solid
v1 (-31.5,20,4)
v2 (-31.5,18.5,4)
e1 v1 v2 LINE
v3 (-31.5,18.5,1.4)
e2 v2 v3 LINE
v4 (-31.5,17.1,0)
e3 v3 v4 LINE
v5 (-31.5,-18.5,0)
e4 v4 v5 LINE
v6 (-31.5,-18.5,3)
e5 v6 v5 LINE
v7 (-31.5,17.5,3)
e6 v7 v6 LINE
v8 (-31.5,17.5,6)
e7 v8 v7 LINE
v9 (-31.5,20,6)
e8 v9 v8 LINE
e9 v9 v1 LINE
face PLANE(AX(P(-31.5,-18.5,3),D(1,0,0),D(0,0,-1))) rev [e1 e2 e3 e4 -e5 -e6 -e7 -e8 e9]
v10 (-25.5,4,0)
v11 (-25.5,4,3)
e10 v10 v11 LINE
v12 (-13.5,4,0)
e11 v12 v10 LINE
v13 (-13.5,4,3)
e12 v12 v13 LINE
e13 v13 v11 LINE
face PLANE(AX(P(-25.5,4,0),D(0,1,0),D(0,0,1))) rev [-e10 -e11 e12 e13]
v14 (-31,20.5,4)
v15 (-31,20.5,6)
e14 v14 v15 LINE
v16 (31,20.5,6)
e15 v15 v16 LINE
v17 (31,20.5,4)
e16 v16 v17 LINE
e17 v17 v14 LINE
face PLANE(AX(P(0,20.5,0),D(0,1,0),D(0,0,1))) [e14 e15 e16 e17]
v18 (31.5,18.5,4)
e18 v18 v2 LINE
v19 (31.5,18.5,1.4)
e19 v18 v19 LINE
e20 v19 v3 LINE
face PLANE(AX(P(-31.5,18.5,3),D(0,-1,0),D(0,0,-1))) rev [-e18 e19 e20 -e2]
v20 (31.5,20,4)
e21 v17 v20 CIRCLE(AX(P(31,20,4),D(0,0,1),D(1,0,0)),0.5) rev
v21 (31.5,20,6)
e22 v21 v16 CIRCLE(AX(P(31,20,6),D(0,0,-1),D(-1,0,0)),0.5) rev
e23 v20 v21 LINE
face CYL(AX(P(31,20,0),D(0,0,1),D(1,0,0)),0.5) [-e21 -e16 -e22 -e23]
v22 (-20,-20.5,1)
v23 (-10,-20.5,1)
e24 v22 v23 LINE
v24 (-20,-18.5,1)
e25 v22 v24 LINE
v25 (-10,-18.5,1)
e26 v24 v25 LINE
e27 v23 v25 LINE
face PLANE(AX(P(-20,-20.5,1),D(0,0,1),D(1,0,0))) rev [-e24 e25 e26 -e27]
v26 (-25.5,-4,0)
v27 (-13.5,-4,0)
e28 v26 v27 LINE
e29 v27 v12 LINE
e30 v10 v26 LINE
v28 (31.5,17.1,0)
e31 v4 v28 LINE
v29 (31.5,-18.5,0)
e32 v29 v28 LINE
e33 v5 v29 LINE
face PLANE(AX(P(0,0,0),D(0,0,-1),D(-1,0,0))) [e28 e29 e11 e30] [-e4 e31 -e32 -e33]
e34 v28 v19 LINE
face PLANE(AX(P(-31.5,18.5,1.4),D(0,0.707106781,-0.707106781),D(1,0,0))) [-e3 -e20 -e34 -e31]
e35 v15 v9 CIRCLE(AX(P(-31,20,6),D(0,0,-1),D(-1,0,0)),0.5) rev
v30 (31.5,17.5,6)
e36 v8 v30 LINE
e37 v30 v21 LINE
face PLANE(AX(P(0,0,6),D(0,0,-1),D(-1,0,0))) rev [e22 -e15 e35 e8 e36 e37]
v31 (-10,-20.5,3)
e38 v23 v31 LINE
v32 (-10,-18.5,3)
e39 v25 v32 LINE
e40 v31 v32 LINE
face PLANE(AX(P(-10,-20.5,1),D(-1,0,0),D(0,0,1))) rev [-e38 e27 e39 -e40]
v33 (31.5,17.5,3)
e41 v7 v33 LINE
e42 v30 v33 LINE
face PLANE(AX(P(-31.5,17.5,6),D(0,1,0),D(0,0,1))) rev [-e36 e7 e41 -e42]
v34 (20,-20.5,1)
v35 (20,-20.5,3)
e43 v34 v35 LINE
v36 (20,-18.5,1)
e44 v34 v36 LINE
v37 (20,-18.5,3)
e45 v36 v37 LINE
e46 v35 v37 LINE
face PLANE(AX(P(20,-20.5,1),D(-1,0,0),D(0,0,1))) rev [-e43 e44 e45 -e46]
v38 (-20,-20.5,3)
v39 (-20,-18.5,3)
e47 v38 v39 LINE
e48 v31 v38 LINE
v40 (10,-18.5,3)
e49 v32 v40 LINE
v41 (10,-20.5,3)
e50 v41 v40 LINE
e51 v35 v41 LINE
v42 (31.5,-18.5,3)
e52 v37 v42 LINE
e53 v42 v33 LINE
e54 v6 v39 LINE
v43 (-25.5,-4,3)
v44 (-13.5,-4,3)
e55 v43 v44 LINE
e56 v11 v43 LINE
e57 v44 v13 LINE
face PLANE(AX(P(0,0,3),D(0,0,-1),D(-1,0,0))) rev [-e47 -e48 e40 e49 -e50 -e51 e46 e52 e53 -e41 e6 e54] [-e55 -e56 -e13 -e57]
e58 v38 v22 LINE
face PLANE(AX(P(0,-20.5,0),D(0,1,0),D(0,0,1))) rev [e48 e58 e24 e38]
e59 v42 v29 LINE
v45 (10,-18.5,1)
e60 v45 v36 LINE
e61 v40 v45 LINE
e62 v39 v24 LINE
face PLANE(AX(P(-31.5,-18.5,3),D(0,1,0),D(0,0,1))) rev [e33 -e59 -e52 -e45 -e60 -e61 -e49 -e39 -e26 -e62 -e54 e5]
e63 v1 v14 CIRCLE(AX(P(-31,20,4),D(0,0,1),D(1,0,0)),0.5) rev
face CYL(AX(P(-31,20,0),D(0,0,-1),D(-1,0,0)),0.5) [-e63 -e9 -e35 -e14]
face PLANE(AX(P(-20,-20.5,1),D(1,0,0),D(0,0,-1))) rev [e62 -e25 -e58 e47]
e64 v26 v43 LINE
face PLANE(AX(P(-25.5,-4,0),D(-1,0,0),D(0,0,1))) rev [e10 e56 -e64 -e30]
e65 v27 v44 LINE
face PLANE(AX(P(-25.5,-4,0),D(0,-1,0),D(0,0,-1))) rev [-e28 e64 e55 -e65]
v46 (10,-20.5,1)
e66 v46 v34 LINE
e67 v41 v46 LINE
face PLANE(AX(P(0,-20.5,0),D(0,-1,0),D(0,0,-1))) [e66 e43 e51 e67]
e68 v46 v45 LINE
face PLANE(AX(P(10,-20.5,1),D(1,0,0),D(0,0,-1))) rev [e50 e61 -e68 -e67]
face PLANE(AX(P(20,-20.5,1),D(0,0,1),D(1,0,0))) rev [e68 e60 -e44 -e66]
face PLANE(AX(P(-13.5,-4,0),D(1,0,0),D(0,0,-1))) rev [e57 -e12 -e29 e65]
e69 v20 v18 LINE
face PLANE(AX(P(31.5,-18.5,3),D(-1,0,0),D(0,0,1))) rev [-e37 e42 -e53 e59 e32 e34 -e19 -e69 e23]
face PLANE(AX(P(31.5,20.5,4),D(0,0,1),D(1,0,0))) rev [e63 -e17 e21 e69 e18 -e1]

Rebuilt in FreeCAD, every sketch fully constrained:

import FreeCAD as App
import Part
import Sketcher


def edges_at(feature, points):
    """Names of the edges that pass closest to the given points."""
    edges = feature.Shape.Edges
    near = lambda p: min(range(len(edges)), key=lambda i: edges[i].distToShape(Part.Vertex(*p))[0])
    return sorted({f"Edge{near(p) + 1}" for p in points})


def add_polygon(sketch, points):
    """Adds a closed chain of lines whose ends are joined by coincident constraints."""
    first, n = sketch.GeometryCount, len(points)
    for a, b in zip(points, points[1:] + points[:1]):
        sketch.addGeometry(Part.LineSegment(App.Vector(*a, 0), App.Vector(*b, 0)), False)
    for i in range(n):
        sketch.addConstraint(Sketcher.Constraint("Coincident", first + i, 2, first + (i + 1) % n, 1))

doc = App.newDocument("Part")
params = doc.addObject("Spreadsheet::Sheet", "Params")
for row, (alias, value) in enumerate([
    ("sketch1_width", "63 mm"),
    ("sketch1_height", "37 mm"),
    ("pad1_length", "3 mm"),
    ("sketch2_width", "10 mm"),
    ("sketch2_height", "2 mm"),
    ("pad2_length", "2 mm"),
    ("sketch3_width", "63 mm"),
    ("sketch3_height", "1 mm"),
    ("pad3_length", "3 mm"),
    ("sketch4_width", "12 mm"),
    ("sketch4_height", "8 mm"),
    ("sketch5_width", "63 mm"),
    ("sketch5_height", "2 mm"),
    ("pad4_length", "2 mm"),
    ("chamfer_size", "1.4 mm"),
    ("fillet_radius", "0.5 mm"),
], start=1):
    params.set(f"A{row}", alias)
    params.set(f"B{row}", "=" + value)
    params.setAlias(f"B{row}", alias)

body = doc.addObject("PartDesign::Body", "Body")

# Sketch on XY plane
sketch1 = body.newObject("Sketcher::SketchObject", "Sketch")
sketch1.AttachmentSupport = (doc.getObject("XY_Plane"), [""])
sketch1.MapMode = "FlatFace"
add_polygon(sketch1, [(-31.5, 18.5), (-31.5, -18.5), (31.5, -18.5), (31.5, 18.5)])  # lines 0-3
sketch1.addConstraint(Sketcher.Constraint("Vertical", 0))
sketch1.addConstraint(Sketcher.Constraint("Horizontal", 1))
sketch1.addConstraint(Sketcher.Constraint("Vertical", 2))
sketch1.addConstraint(Sketcher.Constraint("Horizontal", 3))
sketch1.addConstraint(Sketcher.Constraint("Symmetric", 0, 2, 2, 2, -1, 1))
sketch1.addConstraint(Sketcher.Constraint("DistanceX", 1, 1, 1, 2, 63.0))
sketch1.addConstraint(Sketcher.Constraint("DistanceY", 0, 2, 0, 1, 37.0))
sketch1.setExpression("Constraints[9]", "Params.sketch1_width")
sketch1.setExpression("Constraints[10]", "Params.sketch1_height")
pad1 = body.newObject("PartDesign::Pad", "Pad")
pad1.Profile = sketch1
pad1.setExpression("Length", "Params.pad1_length")

# Sketch on XZ plane
sketch2 = body.newObject("Sketcher::SketchObject", "Sketch001")
sketch2.AttachmentSupport = (doc.getObject("XZ_Plane"), [""])
sketch2.MapMode = "FlatFace"
sketch2.AttachmentOffset = App.Placement(App.Vector(0, 0, 18.5), App.Rotation())
add_polygon(sketch2, [(-20, 3), (-20, 1), (-10, 1), (-10, 3)])  # lines 0-3
add_polygon(sketch2, [(10, 3), (10, 1), (20, 1), (20, 3)])  # lines 4-7
sketch2.addConstraint(Sketcher.Constraint("Vertical", 0))
sketch2.addConstraint(Sketcher.Constraint("Horizontal", 1))
sketch2.addConstraint(Sketcher.Constraint("Vertical", 2))
sketch2.addConstraint(Sketcher.Constraint("Horizontal", 3))
sketch2.addConstraint(Sketcher.Constraint("Vertical", 4))
sketch2.addConstraint(Sketcher.Constraint("Horizontal", 5))
sketch2.addConstraint(Sketcher.Constraint("Vertical", 6))
sketch2.addConstraint(Sketcher.Constraint("Horizontal", 7))
sketch2.addConstraint(Sketcher.Constraint("Symmetric", 1, 2, 4, 2, -2))
sketch2.addConstraint(Sketcher.Constraint("Symmetric", 3, 2, 6, 2, -2))
sketch2.addConstraint(Sketcher.Constraint("DistanceX", 1, 1, 1, 2, 10.0))
sketch2.addConstraint(Sketcher.Constraint("DistanceY", 0, 2, 0, 1, 2.0))
sketch2.addConstraint(Sketcher.Constraint("DistanceX", 0, 2, -1, 1, 20.0))
sketch2.addConstraint(Sketcher.Constraint("DistanceY", -1, 1, 0, 2, 1.0))
sketch2.setExpression("Constraints[18]", "Params.sketch2_width")
sketch2.setExpression("Constraints[19]", "Params.sketch2_height")
pad2 = body.newObject("PartDesign::Pad", "Pad001")
pad2.Profile = sketch2
pad2.setExpression("Length", "Params.pad2_length")

# Sketch on XY plane
sketch3 = body.newObject("Sketcher::SketchObject", "Sketch002")
sketch3.AttachmentSupport = (doc.getObject("XY_Plane"), [""])
sketch3.MapMode = "FlatFace"
sketch3.AttachmentOffset = App.Placement(App.Vector(0, 0, 3), App.Rotation())
add_polygon(sketch3, [(-31.5, 18.5), (-31.5, 17.5), (31.5, 17.5), (31.5, 18.5)])  # lines 0-3
sketch3.addConstraint(Sketcher.Constraint("Vertical", 0))
sketch3.addConstraint(Sketcher.Constraint("Horizontal", 1))
sketch3.addConstraint(Sketcher.Constraint("Vertical", 2))
sketch3.addConstraint(Sketcher.Constraint("Horizontal", 3))
sketch3.addConstraint(Sketcher.Constraint("DistanceX", 1, 1, 1, 2, 63.0))
sketch3.addConstraint(Sketcher.Constraint("DistanceY", 0, 2, 0, 1, 1.0))
sketch3.addConstraint(Sketcher.Constraint("DistanceX", 0, 2, -1, 1, 31.5))
sketch3.addConstraint(Sketcher.Constraint("DistanceY", -1, 1, 0, 2, 17.5))
sketch3.setExpression("Constraints[8]", "Params.sketch3_width")
sketch3.setExpression("Constraints[9]", "Params.sketch3_height")
pad3 = body.newObject("PartDesign::Pad", "Pad002")
pad3.Profile = sketch3
pad3.setExpression("Length", "Params.pad3_length")

# Sketch on XY plane
sketch4 = body.newObject("Sketcher::SketchObject", "Sketch003")
sketch4.AttachmentSupport = (doc.getObject("XY_Plane"), [""])
sketch4.MapMode = "FlatFace"
sketch4.AttachmentOffset = App.Placement(App.Vector(0, 0, 3), App.Rotation())
add_polygon(sketch4, [(-25.5, 4), (-25.5, -4), (-13.5, -4), (-13.5, 4)])  # lines 0-3
sketch4.addConstraint(Sketcher.Constraint("Vertical", 0))
sketch4.addConstraint(Sketcher.Constraint("Horizontal", 1))
sketch4.addConstraint(Sketcher.Constraint("Vertical", 2))
sketch4.addConstraint(Sketcher.Constraint("Horizontal", 3))
sketch4.addConstraint(Sketcher.Constraint("DistanceX", 1, 1, 1, 2, 12.0))
sketch4.addConstraint(Sketcher.Constraint("DistanceY", 0, 2, 0, 1, 8.0))
sketch4.addConstraint(Sketcher.Constraint("DistanceY", 0, 2, -1, 1, 4.0))
sketch4.addConstraint(Sketcher.Constraint("DistanceX", 0, 2, -1, 1, 25.5))
sketch4.setExpression("Constraints[8]", "Params.sketch4_width")
sketch4.setExpression("Constraints[9]", "Params.sketch4_height")
pocket1 = body.newObject("PartDesign::Pocket", "Pocket")
pocket1.Profile = sketch4
pocket1.Type = "ThroughAll"

# Sketch on XZ plane
sketch5 = body.newObject("Sketcher::SketchObject", "Sketch004")
sketch5.AttachmentSupport = (doc.getObject("XZ_Plane"), [""])
sketch5.MapMode = "FlatFace"
sketch5.AttachmentOffset = App.Placement(App.Vector(0, 0, -18.5), App.Rotation())
add_polygon(sketch5, [(-31.5, 4), (-31.5, 6), (31.5, 6), (31.5, 4)])  # lines 0-3
sketch5.addConstraint(Sketcher.Constraint("Vertical", 0))
sketch5.addConstraint(Sketcher.Constraint("Horizontal", 1))
sketch5.addConstraint(Sketcher.Constraint("Vertical", 2))
sketch5.addConstraint(Sketcher.Constraint("Horizontal", 3))
sketch5.addConstraint(Sketcher.Constraint("DistanceX", 1, 1, 1, 2, 63.0))
sketch5.addConstraint(Sketcher.Constraint("DistanceY", 0, 1, 0, 2, 2.0))
sketch5.addConstraint(Sketcher.Constraint("DistanceY", -1, 1, 0, 2, 6.0))
sketch5.addConstraint(Sketcher.Constraint("DistanceX", 0, 2, -1, 1, 31.5))
sketch5.setExpression("Constraints[8]", "Params.sketch5_width")
sketch5.setExpression("Constraints[9]", "Params.sketch5_height")
pad4 = body.newObject("PartDesign::Pad", "Pad003")
pad4.Profile = sketch5
pad4.setExpression("Length", "Params.pad4_length")
pad4.Reversed = True
doc.recompute()

chamfer = body.newObject("PartDesign::Chamfer", "Chamfer")
chamfer.Base = (pad4, edges_at(pad4, [(0, 18.5, 0)]))
chamfer.setExpression("Size", "Params.chamfer_size")
doc.recompute()

fillet = body.newObject("PartDesign::Fillet", "Fillet")
fillet.Base = (chamfer, edges_at(chamfer, [(31.5, 20.5, 5), (-31.5, 20.5, 5)]))
fillet.setExpression("Radius", "Params.fillet_radius")

doc.recompute()
